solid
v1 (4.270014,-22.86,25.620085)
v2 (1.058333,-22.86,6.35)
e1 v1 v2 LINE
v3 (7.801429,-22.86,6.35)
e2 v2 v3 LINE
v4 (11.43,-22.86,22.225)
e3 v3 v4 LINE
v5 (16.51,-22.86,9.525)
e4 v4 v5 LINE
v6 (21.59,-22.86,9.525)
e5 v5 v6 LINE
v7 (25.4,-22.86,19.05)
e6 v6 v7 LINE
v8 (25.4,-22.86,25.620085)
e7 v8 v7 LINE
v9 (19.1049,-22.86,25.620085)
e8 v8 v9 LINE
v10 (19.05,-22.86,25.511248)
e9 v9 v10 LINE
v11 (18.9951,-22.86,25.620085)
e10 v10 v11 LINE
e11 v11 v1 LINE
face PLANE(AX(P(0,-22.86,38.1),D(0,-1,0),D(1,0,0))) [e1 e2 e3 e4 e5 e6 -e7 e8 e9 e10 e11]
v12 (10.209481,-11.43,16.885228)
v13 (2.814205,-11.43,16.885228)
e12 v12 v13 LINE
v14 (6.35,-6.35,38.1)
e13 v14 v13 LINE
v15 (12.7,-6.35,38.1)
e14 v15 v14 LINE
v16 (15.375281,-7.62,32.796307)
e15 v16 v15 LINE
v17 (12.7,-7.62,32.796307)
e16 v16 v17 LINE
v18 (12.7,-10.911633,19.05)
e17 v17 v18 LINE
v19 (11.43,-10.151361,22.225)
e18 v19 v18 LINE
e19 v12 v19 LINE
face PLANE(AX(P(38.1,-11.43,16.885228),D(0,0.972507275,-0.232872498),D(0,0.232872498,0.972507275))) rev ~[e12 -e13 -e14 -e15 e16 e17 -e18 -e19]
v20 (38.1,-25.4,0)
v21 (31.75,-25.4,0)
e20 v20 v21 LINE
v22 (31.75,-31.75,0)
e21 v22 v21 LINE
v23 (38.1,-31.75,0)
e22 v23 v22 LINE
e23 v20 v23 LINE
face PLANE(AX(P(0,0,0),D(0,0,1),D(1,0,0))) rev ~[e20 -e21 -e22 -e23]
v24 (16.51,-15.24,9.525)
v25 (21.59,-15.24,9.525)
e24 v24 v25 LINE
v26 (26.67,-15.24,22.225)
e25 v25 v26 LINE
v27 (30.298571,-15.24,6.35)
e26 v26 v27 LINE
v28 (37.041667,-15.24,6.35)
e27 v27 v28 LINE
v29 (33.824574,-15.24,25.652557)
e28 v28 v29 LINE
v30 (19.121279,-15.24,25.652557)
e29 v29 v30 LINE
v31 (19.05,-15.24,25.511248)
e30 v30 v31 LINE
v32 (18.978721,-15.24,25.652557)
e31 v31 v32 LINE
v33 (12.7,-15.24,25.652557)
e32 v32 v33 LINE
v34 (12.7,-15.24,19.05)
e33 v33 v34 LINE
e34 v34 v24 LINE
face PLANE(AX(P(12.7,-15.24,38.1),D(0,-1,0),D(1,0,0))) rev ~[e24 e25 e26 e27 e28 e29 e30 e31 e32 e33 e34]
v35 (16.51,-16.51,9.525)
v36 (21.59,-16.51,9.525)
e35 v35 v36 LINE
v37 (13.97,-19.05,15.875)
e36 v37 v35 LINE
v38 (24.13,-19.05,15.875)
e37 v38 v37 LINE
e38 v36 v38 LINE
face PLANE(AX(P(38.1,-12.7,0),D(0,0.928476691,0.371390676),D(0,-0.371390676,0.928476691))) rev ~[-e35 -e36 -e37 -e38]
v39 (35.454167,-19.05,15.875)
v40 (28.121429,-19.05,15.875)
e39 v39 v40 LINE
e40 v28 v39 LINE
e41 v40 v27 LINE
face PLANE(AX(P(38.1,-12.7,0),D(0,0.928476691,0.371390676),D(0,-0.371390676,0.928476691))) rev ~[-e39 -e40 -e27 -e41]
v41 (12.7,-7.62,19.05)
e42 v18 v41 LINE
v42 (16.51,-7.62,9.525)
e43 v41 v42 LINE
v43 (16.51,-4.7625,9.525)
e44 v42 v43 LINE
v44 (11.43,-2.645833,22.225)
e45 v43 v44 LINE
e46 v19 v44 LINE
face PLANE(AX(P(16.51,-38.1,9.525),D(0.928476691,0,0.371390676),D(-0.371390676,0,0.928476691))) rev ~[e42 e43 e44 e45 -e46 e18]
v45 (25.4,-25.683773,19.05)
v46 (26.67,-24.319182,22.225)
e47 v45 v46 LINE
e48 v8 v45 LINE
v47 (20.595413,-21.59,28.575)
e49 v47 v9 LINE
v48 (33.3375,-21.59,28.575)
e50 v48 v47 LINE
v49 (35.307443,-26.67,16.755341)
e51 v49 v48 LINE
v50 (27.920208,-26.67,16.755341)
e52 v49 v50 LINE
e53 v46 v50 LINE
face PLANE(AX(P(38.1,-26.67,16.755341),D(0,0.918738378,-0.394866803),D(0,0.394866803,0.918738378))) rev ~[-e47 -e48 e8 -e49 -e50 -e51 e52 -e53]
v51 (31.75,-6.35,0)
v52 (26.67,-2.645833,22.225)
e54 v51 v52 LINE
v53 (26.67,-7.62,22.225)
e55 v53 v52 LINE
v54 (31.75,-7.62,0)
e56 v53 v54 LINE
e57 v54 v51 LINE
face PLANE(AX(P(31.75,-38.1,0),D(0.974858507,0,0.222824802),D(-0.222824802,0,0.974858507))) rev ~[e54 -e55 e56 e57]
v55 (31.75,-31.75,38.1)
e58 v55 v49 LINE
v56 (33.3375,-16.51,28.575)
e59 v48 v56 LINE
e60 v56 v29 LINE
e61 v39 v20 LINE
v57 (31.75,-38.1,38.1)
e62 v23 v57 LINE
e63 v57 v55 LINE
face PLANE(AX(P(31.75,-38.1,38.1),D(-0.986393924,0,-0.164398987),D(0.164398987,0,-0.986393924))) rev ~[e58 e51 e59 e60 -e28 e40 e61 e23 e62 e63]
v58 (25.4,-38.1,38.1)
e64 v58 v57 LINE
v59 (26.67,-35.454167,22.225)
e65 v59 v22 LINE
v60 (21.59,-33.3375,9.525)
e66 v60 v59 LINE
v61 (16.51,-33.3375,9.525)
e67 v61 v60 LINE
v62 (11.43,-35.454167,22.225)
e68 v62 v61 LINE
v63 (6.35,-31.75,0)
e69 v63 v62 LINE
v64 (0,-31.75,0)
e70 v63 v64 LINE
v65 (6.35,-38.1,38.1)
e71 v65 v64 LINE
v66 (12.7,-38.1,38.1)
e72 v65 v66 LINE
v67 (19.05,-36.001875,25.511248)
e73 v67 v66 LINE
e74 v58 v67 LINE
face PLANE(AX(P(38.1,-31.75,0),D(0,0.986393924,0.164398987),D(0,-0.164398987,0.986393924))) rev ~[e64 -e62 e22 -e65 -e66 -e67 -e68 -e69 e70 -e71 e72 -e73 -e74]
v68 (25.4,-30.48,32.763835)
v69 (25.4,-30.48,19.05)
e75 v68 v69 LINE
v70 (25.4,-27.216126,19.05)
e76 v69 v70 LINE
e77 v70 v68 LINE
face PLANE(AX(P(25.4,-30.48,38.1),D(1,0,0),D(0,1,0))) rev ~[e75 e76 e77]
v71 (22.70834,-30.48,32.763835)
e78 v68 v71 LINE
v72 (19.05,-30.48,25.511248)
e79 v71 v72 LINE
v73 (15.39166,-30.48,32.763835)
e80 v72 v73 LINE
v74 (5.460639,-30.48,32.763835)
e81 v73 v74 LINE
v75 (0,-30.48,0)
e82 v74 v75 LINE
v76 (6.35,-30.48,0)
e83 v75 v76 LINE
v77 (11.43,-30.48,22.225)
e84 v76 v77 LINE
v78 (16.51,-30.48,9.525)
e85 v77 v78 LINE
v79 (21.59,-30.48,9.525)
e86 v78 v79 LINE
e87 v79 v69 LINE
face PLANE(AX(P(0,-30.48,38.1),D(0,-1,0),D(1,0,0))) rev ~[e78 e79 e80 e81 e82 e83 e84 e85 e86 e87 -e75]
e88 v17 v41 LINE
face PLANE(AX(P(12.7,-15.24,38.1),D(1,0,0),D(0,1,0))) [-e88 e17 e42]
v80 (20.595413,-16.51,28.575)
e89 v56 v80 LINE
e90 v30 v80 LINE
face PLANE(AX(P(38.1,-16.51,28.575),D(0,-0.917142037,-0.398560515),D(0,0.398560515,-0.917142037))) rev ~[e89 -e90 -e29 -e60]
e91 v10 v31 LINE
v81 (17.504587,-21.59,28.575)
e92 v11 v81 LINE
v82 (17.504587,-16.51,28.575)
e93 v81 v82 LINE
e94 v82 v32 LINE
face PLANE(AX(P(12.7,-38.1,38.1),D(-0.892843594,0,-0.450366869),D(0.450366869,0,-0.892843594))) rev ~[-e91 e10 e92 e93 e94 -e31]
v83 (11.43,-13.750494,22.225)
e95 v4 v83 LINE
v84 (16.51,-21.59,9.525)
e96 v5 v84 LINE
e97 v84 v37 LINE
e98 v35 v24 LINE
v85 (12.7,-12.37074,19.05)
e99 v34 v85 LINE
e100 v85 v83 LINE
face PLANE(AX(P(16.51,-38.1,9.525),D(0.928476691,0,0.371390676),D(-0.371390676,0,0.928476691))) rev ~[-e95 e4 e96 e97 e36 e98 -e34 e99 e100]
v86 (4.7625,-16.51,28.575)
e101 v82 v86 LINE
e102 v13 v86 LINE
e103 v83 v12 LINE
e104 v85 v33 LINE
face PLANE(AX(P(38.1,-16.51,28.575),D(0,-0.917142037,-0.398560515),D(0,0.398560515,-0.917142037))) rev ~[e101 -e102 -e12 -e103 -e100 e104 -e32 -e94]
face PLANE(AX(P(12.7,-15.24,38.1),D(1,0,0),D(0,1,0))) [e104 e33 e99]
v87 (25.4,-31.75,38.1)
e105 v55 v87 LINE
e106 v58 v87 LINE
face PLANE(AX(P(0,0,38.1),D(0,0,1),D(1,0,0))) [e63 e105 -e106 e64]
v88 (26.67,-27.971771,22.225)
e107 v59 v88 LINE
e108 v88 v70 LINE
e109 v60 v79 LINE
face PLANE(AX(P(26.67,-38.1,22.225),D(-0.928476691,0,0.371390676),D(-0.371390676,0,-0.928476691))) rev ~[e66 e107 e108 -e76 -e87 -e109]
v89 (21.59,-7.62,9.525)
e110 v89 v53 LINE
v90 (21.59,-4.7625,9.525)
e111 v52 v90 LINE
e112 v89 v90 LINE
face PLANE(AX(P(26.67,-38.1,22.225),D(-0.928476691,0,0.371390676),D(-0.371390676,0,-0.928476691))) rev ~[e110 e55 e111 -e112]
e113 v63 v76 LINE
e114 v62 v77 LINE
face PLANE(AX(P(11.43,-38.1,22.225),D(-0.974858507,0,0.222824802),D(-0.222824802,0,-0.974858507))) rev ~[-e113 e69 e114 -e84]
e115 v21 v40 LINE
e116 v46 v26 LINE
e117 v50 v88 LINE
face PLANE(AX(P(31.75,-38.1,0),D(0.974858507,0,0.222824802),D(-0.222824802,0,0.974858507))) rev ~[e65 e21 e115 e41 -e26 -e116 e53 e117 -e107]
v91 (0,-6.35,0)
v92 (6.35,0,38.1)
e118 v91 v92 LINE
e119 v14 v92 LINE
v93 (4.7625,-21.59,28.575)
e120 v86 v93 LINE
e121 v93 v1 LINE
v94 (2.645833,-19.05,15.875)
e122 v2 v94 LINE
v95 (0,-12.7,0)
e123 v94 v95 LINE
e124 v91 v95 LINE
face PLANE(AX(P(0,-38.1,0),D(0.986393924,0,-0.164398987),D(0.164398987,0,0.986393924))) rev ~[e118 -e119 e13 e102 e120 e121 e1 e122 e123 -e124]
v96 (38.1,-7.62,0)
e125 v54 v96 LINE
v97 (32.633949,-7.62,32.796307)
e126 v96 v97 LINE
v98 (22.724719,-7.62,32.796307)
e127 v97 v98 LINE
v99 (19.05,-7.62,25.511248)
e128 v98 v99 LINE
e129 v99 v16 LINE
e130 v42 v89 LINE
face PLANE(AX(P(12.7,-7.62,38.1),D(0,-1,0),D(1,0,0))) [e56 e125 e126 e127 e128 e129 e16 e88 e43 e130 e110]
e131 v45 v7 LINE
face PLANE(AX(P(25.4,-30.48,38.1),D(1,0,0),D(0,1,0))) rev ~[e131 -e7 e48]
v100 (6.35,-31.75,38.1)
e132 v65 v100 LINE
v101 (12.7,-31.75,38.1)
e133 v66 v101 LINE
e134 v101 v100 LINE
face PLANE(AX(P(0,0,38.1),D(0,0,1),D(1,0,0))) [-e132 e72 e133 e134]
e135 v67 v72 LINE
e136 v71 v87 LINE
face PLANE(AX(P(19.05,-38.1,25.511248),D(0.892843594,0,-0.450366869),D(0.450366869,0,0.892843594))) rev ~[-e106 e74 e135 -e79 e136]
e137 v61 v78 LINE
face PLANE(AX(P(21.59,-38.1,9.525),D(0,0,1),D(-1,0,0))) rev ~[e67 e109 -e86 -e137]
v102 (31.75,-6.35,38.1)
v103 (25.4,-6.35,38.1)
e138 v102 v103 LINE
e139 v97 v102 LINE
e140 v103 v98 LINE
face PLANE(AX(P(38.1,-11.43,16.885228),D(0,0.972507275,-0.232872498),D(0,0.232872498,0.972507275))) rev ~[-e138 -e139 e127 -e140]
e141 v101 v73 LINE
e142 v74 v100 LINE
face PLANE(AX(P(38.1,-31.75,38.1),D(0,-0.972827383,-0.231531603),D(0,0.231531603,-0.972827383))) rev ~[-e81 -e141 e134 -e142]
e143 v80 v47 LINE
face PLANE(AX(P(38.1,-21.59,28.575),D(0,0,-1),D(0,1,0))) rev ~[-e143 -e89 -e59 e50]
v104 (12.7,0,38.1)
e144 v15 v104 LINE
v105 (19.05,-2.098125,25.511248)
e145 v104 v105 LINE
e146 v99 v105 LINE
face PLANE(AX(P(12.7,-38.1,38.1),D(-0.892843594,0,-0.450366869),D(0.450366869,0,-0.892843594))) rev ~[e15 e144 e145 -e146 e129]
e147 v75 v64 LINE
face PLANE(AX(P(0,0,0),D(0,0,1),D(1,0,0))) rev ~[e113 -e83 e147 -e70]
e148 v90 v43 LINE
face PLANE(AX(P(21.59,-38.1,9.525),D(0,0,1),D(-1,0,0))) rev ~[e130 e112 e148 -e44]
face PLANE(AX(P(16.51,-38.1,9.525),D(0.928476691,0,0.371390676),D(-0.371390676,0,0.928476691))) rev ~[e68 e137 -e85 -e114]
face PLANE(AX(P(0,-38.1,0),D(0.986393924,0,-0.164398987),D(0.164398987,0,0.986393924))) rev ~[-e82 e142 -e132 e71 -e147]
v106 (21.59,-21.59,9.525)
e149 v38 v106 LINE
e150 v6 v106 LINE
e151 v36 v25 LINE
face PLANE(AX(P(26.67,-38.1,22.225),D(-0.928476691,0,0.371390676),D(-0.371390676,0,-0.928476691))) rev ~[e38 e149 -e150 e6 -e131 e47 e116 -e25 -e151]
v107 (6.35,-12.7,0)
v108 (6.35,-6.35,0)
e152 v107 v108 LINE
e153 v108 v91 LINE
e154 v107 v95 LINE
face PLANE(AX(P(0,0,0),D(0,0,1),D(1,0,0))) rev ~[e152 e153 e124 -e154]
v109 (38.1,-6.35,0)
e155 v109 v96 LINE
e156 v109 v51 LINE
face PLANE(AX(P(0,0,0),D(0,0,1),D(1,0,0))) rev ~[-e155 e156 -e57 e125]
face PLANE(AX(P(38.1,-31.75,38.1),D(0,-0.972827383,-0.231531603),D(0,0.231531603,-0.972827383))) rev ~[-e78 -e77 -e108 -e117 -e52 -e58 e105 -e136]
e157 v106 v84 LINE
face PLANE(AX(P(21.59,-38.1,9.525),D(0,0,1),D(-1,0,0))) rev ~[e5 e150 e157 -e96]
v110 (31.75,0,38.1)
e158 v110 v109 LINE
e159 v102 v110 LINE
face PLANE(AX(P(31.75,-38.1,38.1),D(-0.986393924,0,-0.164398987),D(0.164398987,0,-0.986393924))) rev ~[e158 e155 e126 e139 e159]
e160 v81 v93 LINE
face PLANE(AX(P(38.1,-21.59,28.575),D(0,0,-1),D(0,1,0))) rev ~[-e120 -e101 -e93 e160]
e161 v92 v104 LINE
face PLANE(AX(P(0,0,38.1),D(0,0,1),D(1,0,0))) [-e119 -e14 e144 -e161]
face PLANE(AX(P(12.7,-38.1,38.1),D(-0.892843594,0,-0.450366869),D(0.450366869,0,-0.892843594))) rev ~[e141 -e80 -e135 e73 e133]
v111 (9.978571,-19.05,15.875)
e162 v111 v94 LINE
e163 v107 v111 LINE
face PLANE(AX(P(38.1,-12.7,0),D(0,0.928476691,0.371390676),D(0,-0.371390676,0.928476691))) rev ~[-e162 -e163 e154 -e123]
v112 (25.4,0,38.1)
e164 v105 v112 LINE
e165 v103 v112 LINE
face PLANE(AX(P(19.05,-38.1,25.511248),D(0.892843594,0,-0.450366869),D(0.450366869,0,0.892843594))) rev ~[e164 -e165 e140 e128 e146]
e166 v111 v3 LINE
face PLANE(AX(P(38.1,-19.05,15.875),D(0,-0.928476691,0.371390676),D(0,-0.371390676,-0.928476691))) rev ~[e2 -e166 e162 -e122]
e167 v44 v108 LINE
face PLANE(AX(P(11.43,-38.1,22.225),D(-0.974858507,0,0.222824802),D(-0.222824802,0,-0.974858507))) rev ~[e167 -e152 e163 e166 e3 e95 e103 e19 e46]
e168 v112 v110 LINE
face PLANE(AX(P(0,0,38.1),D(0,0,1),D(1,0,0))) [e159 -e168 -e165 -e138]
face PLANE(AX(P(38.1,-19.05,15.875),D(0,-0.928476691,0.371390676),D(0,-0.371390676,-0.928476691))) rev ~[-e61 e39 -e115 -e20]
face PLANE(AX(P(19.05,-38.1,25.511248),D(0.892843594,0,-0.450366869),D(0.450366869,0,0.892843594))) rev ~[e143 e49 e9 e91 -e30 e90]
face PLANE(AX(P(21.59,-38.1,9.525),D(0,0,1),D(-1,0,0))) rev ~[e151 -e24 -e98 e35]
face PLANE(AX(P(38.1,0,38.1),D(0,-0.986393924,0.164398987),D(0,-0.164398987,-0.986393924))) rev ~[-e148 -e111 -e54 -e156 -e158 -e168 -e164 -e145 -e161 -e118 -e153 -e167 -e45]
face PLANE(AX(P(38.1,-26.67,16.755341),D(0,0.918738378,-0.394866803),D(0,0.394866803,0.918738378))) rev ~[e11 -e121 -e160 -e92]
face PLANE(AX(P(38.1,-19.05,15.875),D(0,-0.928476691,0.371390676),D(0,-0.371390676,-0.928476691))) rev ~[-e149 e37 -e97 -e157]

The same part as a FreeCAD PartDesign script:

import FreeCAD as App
import Part
import Sketcher
Q = App.Units.Quantity

doc = App.newDocument("Part")
body = doc.addObject("PartDesign::Body", "Body")

# Sketch on XZ plane
sketch1 = body.newObject("Sketcher::SketchObject", "Sketch")
sketch1.AttachmentSupport = (doc.getObject("XZ_Plane"), [""])
sketch1.MapMode = "FlatFace"
sketch1.addGeometry([
    Part.LineSegment(App.Vector(0, 38, 0), App.Vector(0, 0, 0)),
    Part.LineSegment(App.Vector(0, 0, 0), App.Vector(38, 0, 0)),
    Part.LineSegment(App.Vector(38, 0, 0), App.Vector(38, 38, 0)),
    Part.LineSegment(App.Vector(38, 38, 0), App.Vector(0, 38, 0)),
], False)
sketch1.addConstraint([
    Sketcher.Constraint("Coincident", 0, 2, 1, 1),
    Sketcher.Constraint("Coincident", 1, 2, 2, 1),
    Sketcher.Constraint("Coincident", 2, 2, 3, 1),
    Sketcher.Constraint("Coincident", 3, 2, 0, 1),
    Sketcher.Constraint("Vertical", 0),
    Sketcher.Constraint("Horizontal", 1),
    Sketcher.Constraint("Vertical", 2),
    Sketcher.Constraint("Horizontal", 3),
    Sketcher.Constraint("Coincident", 0, 2, -1, 1),
    Sketcher.Constraint("Equal", 3, 0),
    Sketcher.Constraint("DistanceX", 1, 1, 1, 2, Q("1.5 in")),
])
pad1 = body.newObject("PartDesign::Pad", "Pad")
pad1.Profile = sketch1
pad1.Length = Q("1.5 in")

# Sketch on YZ plane
sketch2 = body.newObject("Sketcher::SketchObject", "Sketch001")
sketch2.AttachmentSupport = (doc.getObject("YZ_Plane"), [""])
sketch2.MapMode = "FlatFace"
sketch2.AttachmentOffset = App.Placement(App.Vector(0, 0, 1.5 * 25.4), App.Rotation())
sketch2.addGeometry([
    Part.LineSegment(App.Vector(-6, 38, 0), App.Vector(-32, 38, 0)),  # 0
    Part.LineSegment(App.Vector(-32, 38, 0), App.Vector(-27, 17, 0)),  # 1
    Part.LineSegment(App.Vector(-27, 17, 0), App.Vector(-22, 29, 0)),  # 2
    Part.LineSegment(App.Vector(-22, 29, 0), App.Vector(-17, 29, 0)),  # 3
    Part.LineSegment(App.Vector(-17, 29, 0), App.Vector(-11, 17, 0)),  # 4
    Part.LineSegment(App.Vector(-11, 17, 0), App.Vector(-6, 38, 0)),  # 5
    Part.LineSegment(App.Vector(-32, 0, 0), App.Vector(-38, 38, 0)),  # 6
    Part.LineSegment(App.Vector(-38, 38, 0), App.Vector(-38, 0, 0)),  # 7
    Part.LineSegment(App.Vector(-38, 0, 0), App.Vector(-32, 0, 0)),  # 8
    Part.LineSegment(App.Vector(-19, 16, 0), App.Vector(-25, 0, 0)),  # 9
    Part.LineSegment(App.Vector(-25, 0, 0), App.Vector(-13, 0, 0)),  # 10
    Part.LineSegment(App.Vector(-13, 0, 0), App.Vector(-19, 16, 0)),  # 11
    Part.LineSegment(App.Vector(0, 0, 0), App.Vector(0, 38, 0)),  # 12
    Part.LineSegment(App.Vector(0, 38, 0), App.Vector(-6, 0, 0)),  # 13
    Part.LineSegment(App.Vector(-6, 0, 0), App.Vector(0, 0, 0)),  # 14
], False)
sketch2.addConstraint([
    Sketcher.Constraint("Coincident", 0, 2, 1, 1),
    Sketcher.Constraint("Coincident", 1, 2, 2, 1),
    Sketcher.Constraint("Coincident", 2, 2, 3, 1),
    Sketcher.Constraint("Coincident", 3, 2, 4, 1),
    Sketcher.Constraint("Coincident", 4, 2, 5, 1),
    Sketcher.Constraint("Coincident", 5, 2, 0, 1),
    Sketcher.Constraint("Coincident", 6, 2, 7, 1),
    Sketcher.Constraint("Coincident", 7, 2, 8, 1),
    Sketcher.Constraint("Coincident", 8, 2, 6, 1),
    Sketcher.Constraint("Coincident", 9, 2, 10, 1),
    Sketcher.Constraint("Coincident", 10, 2, 11, 1),
    Sketcher.Constraint("Coincident", 11, 2, 9, 1),
    Sketcher.Constraint("Coincident", 12, 2, 13, 1),
    Sketcher.Constraint("Coincident", 13, 2, 14, 1),
    Sketcher.Constraint("Coincident", 14, 2, 12, 1),
    Sketcher.Constraint("Horizontal", 0),
    Sketcher.Constraint("Horizontal", 3),
    Sketcher.Constraint("Vertical", 7),
    Sketcher.Constraint("Horizontal", 8),
    Sketcher.Constraint("Horizontal", 10),
    Sketcher.Constraint("Vertical", 12),
    Sketcher.Constraint("Horizontal", 14),
    Sketcher.Constraint("Coincident", 14, 2, -1, 1),
    Sketcher.Constraint("PointOnObject", 7, 2, -1),
    Sketcher.Constraint("PointOnObject", 9, 2, -1),
    Sketcher.Constraint("Horizontal", 5, 2, 6, 2),
    Sketcher.Constraint("Horizontal", 6, 2, 12, 2),
    Sketcher.Constraint("Vertical", 0, 2, 8, 2),
    Sketcher.Constraint("Vertical", 5, 2, 13, 2),
    Sketcher.Constraint("Equal", 8, 14),
    Sketcher.Constraint("Equal", 9, 11),
    Sketcher.Constraint("DistanceX", 0, 2, 0, 1, Q("1 in")),
    Sketcher.Constraint("DistanceX", 3, 1, 3, 2, Q("0.2 in")),
    Sketcher.Constraint("DistanceX", 10, 1, 10, 2, Q("0.5 in")),
    Sketcher.Constraint("DistanceY", 7, 2, 7, 1, Q("1.5 in")),
    Sketcher.Constraint("DistanceX", 9, 2, -1, 1, Q("1 in")),
    Sketcher.Constraint("DistanceX", 7, 2, 10, 2, Q("1 in")),
    Sketcher.Constraint("DistanceX", 0, 2, 1, 2, Q("0.2 in")),
    Sketcher.Constraint("DistanceX", 1, 2, 2, 2, Q("0.2 in")),
    Sketcher.Constraint("DistanceX", 3, 2, 4, 2, Q("0.2 in")),
    Sketcher.Constraint("DistanceY", 11, 2, 2, 2, Q("0.5 in")),
    Sketcher.Constraint("DistanceY", -1, 1, 2, 2, Q("1.125 in")),
    Sketcher.Constraint("Distance", 2, Q("0.5064999 in")),
    Sketcher.Constraint("Distance", 4, 12.745869),
])
pocket1 = body.newObject("PartDesign::Pocket", "Pocket")
pocket1.Profile = sketch2
pocket1.Length = Q("1.5 in")

# Sketch on XZ plane
sketch3 = body.newObject("Sketcher::SketchObject", "Sketch002")
sketch3.AttachmentSupport = (doc.getObject("XZ_Plane"), [""])
sketch3.MapMode = "FlatFace"
sketch3.AttachmentOffset = App.Placement(App.Vector(0, 0, 1.5 * 25.4), App.Rotation())
sketch3.addGeometry([
    Part.LineSegment(App.Vector(0, 38, 0), App.Vector(0, 0, 0)),  # 0
    Part.LineSegment(App.Vector(0, 0, 0), App.Vector(6, 38, 0)),  # 1
    Part.LineSegment(App.Vector(6, 38, 0), App.Vector(0, 38, 0)),  # 2
    Part.LineSegment(App.Vector(25, 38, 0), App.Vector(13, 38, 0)),  # 3
    Part.LineSegment(App.Vector(13, 38, 0), App.Vector(19, 26, 0)),  # 4
    Part.LineSegment(App.Vector(19, 26, 0), App.Vector(25, 38, 0)),  # 5
    Part.LineSegment(App.Vector(11, 22, 0), App.Vector(6, 0, 0)),  # 6
    Part.LineSegment(App.Vector(6, 0, 0), App.Vector(32, 0, 0)),  # 7
    Part.LineSegment(App.Vector(32, 0, 0), App.Vector(27, 22, 0)),  # 8
    Part.LineSegment(App.Vector(27, 22, 0), App.Vector(22, 10, 0)),  # 9
    Part.LineSegment(App.Vector(22, 10, 0), App.Vector(17, 10, 0)),  # 10
    Part.LineSegment(App.Vector(17, 10, 0), App.Vector(11, 22, 0)),  # 11
    Part.LineSegment(App.Vector(32, 38, 0), App.Vector(38, 0, 0)),  # 12
    Part.LineSegment(App.Vector(38, 0, 0), App.Vector(38, 38, 0)),  # 13
    Part.LineSegment(App.Vector(38, 38, 0), App.Vector(32, 38, 0)),  # 14
], False)
sketch3.addConstraint([
    Sketcher.Constraint("Coincident", 0, 2, 1, 1),
    Sketcher.Constraint("Coincident", 1, 2, 2, 1),
    Sketcher.Constraint("Coincident", 2, 2, 0, 1),
    Sketcher.Constraint("Coincident", 3, 2, 4, 1),
    Sketcher.Constraint("Coincident", 4, 2, 5, 1),
    Sketcher.Constraint("Coincident", 5, 2, 3, 1),
    Sketcher.Constraint("Coincident", 6, 2, 7, 1),
    Sketcher.Constraint("Coincident", 7, 2, 8, 1),
    Sketcher.Constraint("Coincident", 8, 2, 9, 1),
    Sketcher.Constraint("Coincident", 9, 2, 10, 1),
    Sketcher.Constraint("Coincident", 10, 2, 11, 1),
    Sketcher.Constraint("Coincident", 11, 2, 6, 1),
    Sketcher.Constraint("Coincident", 12, 2, 13, 1),
    Sketcher.Constraint("Coincident", 13, 2, 14, 1),
    Sketcher.Constraint("Coincident", 14, 2, 12, 1),
    Sketcher.Constraint("Vertical", 0),
    Sketcher.Constraint("Horizontal", 2),
    Sketcher.Constraint("Horizontal", 3),
    Sketcher.Constraint("Horizontal", 7),
    Sketcher.Constraint("Horizontal", 10),
    Sketcher.Constraint("Vertical", 13),
    Sketcher.Constraint("Horizontal", 14),
    Sketcher.Constraint("Coincident", 0, 2, -1, 1),
    Sketcher.Constraint("PointOnObject", 6, 2, -1),
    Sketcher.Constraint("PointOnObject", 12, 2, -1),
    Sketcher.Constraint("Horizontal", 2, 2, 3, 2),
    Sketcher.Constraint("Horizontal", 8, 2, 11, 2),
    Sketcher.Constraint("Horizontal", 5, 2, 13, 2),
    Sketcher.Constraint("Vertical", 1, 2, 6, 2),
    Sketcher.Constraint("Vertical", 7, 2, 14, 2),
    Sketcher.Constraint("Equal", 2, 14),
    Sketcher.Constraint("Equal", 4, 5),
    Sketcher.Constraint("Equal", 6, 8),
    Sketcher.Constraint("Equal", 9, 11),
    Sketcher.Constraint("DistanceX", 7, 1, 7, 2, Q("1 in")),
    Sketcher.Constraint("DistanceX", 3, 2, 3, 1, Q("0.5 in")),
    Sketcher.Constraint("DistanceX", 10, 2, 10, 1, Q("0.2 in")),
    Sketcher.Constraint("DistanceY", 0, 2, 0, 1, Q("1.5 in")),
    Sketcher.Constraint("DistanceX", -1, 1, 5, 2, Q("1 in")),
    Sketcher.Constraint("DistanceX", 3, 2, 13, 2, Q("1 in")),
    Sketcher.Constraint("DistanceX", 4, 2, 8, 2, Q("0.3 in")),
    Sketcher.Constraint("DistanceY", 9, 2, 8, 2, Q("0.5 in")),
    Sketcher.Constraint("DistanceY", -1, 1, 8, 2, Q("0.875 in")),
    Sketcher.Constraint("Distance", 4, 14.099616),
])
pocket2 = body.newObject("PartDesign::Pocket", "Pocket001")
pocket2.Profile = sketch3
pocket2.Length = Q("1.5 in")

# Sketch on XY plane
sketch4 = body.newObject("Sketcher::SketchObject", "Sketch003")
sketch4.AttachmentSupport = (doc.getObject("XY_Plane"), [""])
sketch4.MapMode = "FlatFace"
sketch4.AttachmentOffset = App.Placement(App.Vector(0, 0, 1.5 * 25.4), App.Rotation())
sketch4.addGeometry([
    Part.LineSegment(App.Vector(13, -8, 0), App.Vector(13, -15, 0)),  # 0
    Part.LineSegment(App.Vector(13, -15, 0), App.Vector(38, -15, 0)),  # 1
    Part.LineSegment(App.Vector(38, -15, 0), App.Vector(38, -8, 0)),  # 2
    Part.LineSegment(App.Vector(38, -8, 0), App.Vector(13, -8, 0)),  # 3
    Part.LineSegment(App.Vector(0, -23, 0), App.Vector(0, -30, 0)),  # 4
    Part.LineSegment(App.Vector(0, -30, 0), App.Vector(25, -30, 0)),  # 5
    Part.LineSegment(App.Vector(25, -30, 0), App.Vector(25, -23, 0)),  # 6
    Part.LineSegment(App.Vector(25, -23, 0), App.Vector(0, -23, 0)),  # 7
], False)
sketch4.addConstraint([
    Sketcher.Constraint("Coincident", 0, 2, 1, 1),
    Sketcher.Constraint("Coincident", 1, 2, 2, 1),
    Sketcher.Constraint("Coincident", 2, 2, 3, 1),
    Sketcher.Constraint("Coincident", 3, 2, 0, 1),
    Sketcher.Constraint("Coincident", 4, 2, 5, 1),
    Sketcher.Constraint("Coincident", 5, 2, 6, 1),
    Sketcher.Constraint("Coincident", 6, 2, 7, 1),
    Sketcher.Constraint("Coincident", 7, 2, 4, 1),
    Sketcher.Constraint("Vertical", 0),
    Sketcher.Constraint("Horizontal", 1),
    Sketcher.Constraint("Vertical", 2),
    Sketcher.Constraint("Horizontal", 3),
    Sketcher.Constraint("Vertical", 4),
    Sketcher.Constraint("Horizontal", 5),
    Sketcher.Constraint("Vertical", 6),
    Sketcher.Constraint("Horizontal", 7),
    Sketcher.Constraint("PointOnObject", 4, 2, -2),
    Sketcher.Constraint("Equal", 3, 5),
    Sketcher.Constraint("Equal", 2, 4),
    Sketcher.Constraint("DistanceX", 1, 1, 1, 2, Q("1 in")),
    Sketcher.Constraint("DistanceY", 0, 2, 0, 1, Q("0.3 in")),
    Sketcher.Constraint("DistanceX", -1, 1, 0, 2, Q("0.5 in")),
    Sketcher.Constraint("DistanceY", 0, 2, -1, 1, Q("0.6 in")),
    Sketcher.Constraint("DistanceY", 4, 2, -1, 1, Q("1.2 in")),
])
pocket3 = body.newObject("PartDesign::Pocket", "Pocket002")
pocket3.Profile = sketch4
pocket3.Length = Q("1.5 in")

doc.recompute()
